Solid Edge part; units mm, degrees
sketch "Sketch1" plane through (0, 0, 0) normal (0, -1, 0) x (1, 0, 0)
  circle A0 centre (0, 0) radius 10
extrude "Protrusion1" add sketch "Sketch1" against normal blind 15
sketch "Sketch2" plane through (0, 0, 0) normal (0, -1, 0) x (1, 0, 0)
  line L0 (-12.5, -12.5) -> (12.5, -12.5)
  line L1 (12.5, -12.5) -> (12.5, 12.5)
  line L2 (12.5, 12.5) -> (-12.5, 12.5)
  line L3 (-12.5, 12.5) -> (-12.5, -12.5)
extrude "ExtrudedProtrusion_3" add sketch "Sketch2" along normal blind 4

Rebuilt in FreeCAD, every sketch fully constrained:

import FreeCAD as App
import Part
import Sketcher
Q = App.Units.Quantity


def add_polygon(sketch, points):
    """Adds a closed chain of lines whose ends are joined by coincident constraints."""
    first, n = sketch.GeometryCount, len(points)
    for a, b in zip(points, points[1:] + points[:1]):
        sketch.addGeometry(Part.LineSegment(App.Vector(*a, 0), App.Vector(*b, 0)), False)
    for i in range(n):
        sketch.addConstraint(Sketcher.Constraint("Coincident", first + i, 2, first + (i + 1) % n, 1))

doc = App.newDocument("Part")
body = doc.addObject("PartDesign::Body", "Body")

# Sketch on XZ plane
sketch1 = body.newObject("Sketcher::SketchObject", "Sketch")
sketch1.AttachmentSupport = (doc.getObject("XZ_Plane"), [""])
sketch1.MapMode = "FlatFace"
sketch1.addGeometry(Part.Circle(App.Vector(0, 0, 0), App.Vector(0, 0, 1), 10), False)
sketch1.addConstraint([
    Sketcher.Constraint("Coincident", 0, 3, -1, 1),
    Sketcher.Constraint("Diameter", 0, Q("20 mm")),
])
pad1 = body.newObject("PartDesign::Pad", "Pad")
pad1.Profile = sketch1
pad1.Length = 15
pad1.Reversed = True

# Sketch on XZ plane
sketch2 = body.newObject("Sketcher::SketchObject", "Sketch001")
sketch2.AttachmentSupport = (doc.getObject("XZ_Plane"), [""])
sketch2.MapMode = "FlatFace"
add_polygon(sketch2, [(-12, 12), (-12, -12), (12, -12), (12, 12)])  # lines 0-3
sketch2.addConstraint([
    Sketcher.Constraint("Vertical", 0),
    Sketcher.Constraint("Horizontal", 1),
    Sketcher.Constraint("Vertical", 2),
    Sketcher.Constraint("Horizontal", 3),
    Sketcher.Constraint("Symmetric", 0, 2, 2, 2, -1, 1),
    Sketcher.Constraint("Equal", 3, 0),
    Sketcher.Constraint("DistanceX", 1, 1, 1, 2, Q("25 mm")),
])
pad2 = body.newObject("PartDesign::Pad", "Pad001")
pad2.Profile = sketch2
pad2.Length = 4

doc.recompute()
